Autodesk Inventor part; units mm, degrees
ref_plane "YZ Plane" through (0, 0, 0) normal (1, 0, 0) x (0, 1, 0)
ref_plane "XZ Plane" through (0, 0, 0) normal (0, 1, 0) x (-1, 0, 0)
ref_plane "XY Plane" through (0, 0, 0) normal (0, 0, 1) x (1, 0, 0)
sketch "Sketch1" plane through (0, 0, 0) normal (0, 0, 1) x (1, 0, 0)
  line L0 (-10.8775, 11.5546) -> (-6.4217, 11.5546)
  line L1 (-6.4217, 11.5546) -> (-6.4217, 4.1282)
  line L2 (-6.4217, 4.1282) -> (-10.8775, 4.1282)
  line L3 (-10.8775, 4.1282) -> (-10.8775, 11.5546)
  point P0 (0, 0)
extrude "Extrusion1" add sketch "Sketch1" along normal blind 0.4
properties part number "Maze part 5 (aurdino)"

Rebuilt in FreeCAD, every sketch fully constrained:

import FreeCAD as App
import Part
import Sketcher
from FreeCAD import Vector


def add_polygon(sketch, points):
    """Adds a closed chain of lines whose ends are joined by coincident constraints."""
    first, n = sketch.GeometryCount, len(points)
    for a, b in zip(points, points[1:] + points[:1]):
        sketch.addGeometry(Part.LineSegment(App.Vector(*a, 0), App.Vector(*b, 0)), False)
    for i in range(n):
        sketch.addConstraint(Sketcher.Constraint("Coincident", first + i, 2, first + (i + 1) % n, 1))

doc = App.newDocument("Part")
body = doc.addObject("PartDesign::Body", "Body")

# Sketch on XY plane
sketch1 = body.newObject("Sketcher::SketchObject", "Sketch")
sketch1.AttachmentSupport = (doc.getObject("XY_Plane"), [""])
sketch1.MapMode = "FlatFace"
add_polygon(sketch1, [(-6.4217, 11.5546), (-10.8775, 11.5546), (-10.8775, 4.1282), (-6.4217, 4.1282)])  # lines 0-3
sketch1.addConstraint([
    Sketcher.Constraint("Horizontal", 0),
    Sketcher.Constraint("Vertical", 1),
    Sketcher.Constraint("Horizontal", 2),
    Sketcher.Constraint("Vertical", 3),
    Sketcher.Constraint("DistanceX", 0, 2, 0, 1, 4.4558),
    Sketcher.Constraint("DistanceY", 1, 2, 1, 1, 7.4264),
    Sketcher.Constraint("DistanceX", 0, 2, -1, 1, 10.8775),
    Sketcher.Constraint("DistanceY", -1, 1, 0, 2, 11.5546),
])
pad1 = body.newObject("PartDesign::Pad", "Pad")
pad1.Profile = sketch1
pad1.Length = 0.4

doc.recompute()
